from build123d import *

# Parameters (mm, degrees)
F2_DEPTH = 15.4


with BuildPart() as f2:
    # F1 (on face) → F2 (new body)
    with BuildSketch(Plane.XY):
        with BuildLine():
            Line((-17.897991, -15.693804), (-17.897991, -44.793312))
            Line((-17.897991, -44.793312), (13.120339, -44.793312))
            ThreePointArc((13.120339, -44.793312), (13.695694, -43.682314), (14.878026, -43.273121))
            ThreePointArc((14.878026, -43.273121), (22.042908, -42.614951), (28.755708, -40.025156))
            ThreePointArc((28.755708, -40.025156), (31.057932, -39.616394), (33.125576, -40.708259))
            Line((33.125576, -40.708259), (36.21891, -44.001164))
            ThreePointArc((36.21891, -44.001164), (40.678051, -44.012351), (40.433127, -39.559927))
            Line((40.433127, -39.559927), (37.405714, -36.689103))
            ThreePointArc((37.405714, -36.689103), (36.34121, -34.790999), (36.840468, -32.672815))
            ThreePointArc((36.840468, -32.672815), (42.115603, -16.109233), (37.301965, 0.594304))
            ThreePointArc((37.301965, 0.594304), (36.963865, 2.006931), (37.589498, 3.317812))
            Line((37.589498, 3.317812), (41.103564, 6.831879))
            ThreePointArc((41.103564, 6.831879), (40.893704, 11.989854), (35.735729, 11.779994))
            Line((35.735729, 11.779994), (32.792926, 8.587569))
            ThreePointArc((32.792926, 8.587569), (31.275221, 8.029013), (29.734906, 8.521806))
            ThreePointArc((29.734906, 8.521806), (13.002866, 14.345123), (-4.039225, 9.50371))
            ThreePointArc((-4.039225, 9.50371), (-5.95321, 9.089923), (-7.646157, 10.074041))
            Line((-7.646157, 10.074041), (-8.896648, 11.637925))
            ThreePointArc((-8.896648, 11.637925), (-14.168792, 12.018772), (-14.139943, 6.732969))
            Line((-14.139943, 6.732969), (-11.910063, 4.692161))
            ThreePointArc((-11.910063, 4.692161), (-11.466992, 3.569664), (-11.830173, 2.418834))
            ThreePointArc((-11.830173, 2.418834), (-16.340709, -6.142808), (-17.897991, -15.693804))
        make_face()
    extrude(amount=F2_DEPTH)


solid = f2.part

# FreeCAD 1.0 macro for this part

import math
import FreeCAD as App
import Part
import Sketcher

V = App.Vector
Q = App.Units.Quantity

doc = App.newDocument("Part")
body = doc.addObject("PartDesign::Body", "Body")

sketch1 = body.newObject("Sketcher::SketchObject", "Sketch")
sketch1.AttachmentSupport = (doc.getObject("XY_Plane"), [""])
sketch1.MapMode = "FlatFace"
sketch1.addGeometry(Part.LineSegment(V(-17.9, -15.7, 0), V(-17.9, -44.8, 0)), False)
sketch1.addGeometry(Part.LineSegment(V(-17.9, -44.8, 0), V(13.1, -44.8, 0)), False)
sketch1.addGeometry(Part.ArcOfCircle(Part.Circle(V(14.8, -45, 0), V(0, 0, 1), 1.7), math.radians(87), math.radians(174)), False)
sketch1.addGeometry(Part.ArcOfCircle(Part.Circle(V(16.1, -17.2, 0), V(0, 0, 1), 26.1), math.radians(-93), math.radians(-61)), False)
sketch1.addGeometry(Part.ArcOfCircle(Part.Circle(V(30.5, -43.2, 0), V(0, 0, 1), 3.6), math.radians(43), math.radians(119)), False)
sketch1.addGeometry(Part.LineSegment(V(33.1, -40.7, 0), V(36.2, -44, 0)), False)
sketch1.addGeometry(Part.ArcOfCircle(Part.Circle(V(38.5, -41.9, 0), V(0, 0, 1), 3.1), math.radians(-137), math.radians(50)), False)
sketch1.addGeometry(Part.LineSegment(V(40.4, -39.6, 0), V(37.4, -36.7, 0)), False)
sketch1.addGeometry(Part.ArcOfCircle(Part.Circle(V(39.3, -34.4, 0), V(0, 0, 1), 3), math.radians(145), math.radians(231)), False)
sketch1.addGeometry(Part.ArcOfCircle(Part.Circle(V(12.2, -15.7, 0), V(0, 0, 1), 29.9), math.radians(-35), math.radians(33)), False)
sketch1.addGeometry(Part.ArcOfCircle(Part.Circle(V(39.1, 1.8, 0), V(0, 0, 1), 2.2), math.radians(135), math.radians(213)), False)
sketch1.addGeometry(Part.LineSegment(V(37.6, 3.3, 0), V(41.1, 6.8, 0)), False)
sketch1.addGeometry(Part.ArcOfCircle(Part.Circle(V(38.4, 9.3, 0), V(0, 0, 1), 3.7), math.radians(-43), math.radians(137)), False)
sketch1.addGeometry(Part.LineSegment(V(35.7, 11.8, 0), V(32.8, 8.6, 0)), False)
sketch1.addGeometry(Part.ArcOfCircle(Part.Circle(V(31.2, 10.5, 0), V(0, 0, 1), 2.5), math.radians(-127), math.radians(-51)), False)
sketch1.addGeometry(Part.ArcOfCircle(Part.Circle(V(12.1, -15.1, 0), V(0, 0, 1), 29.4), math.radians(53), math.radians(123)), False)
sketch1.addGeometry(Part.ArcOfCircle(Part.Circle(V(-5.5, 11.8, 0), V(0, 0, 1), 2.7), math.radians(-141), math.radians(-57)), False)
sketch1.addGeometry(Part.LineSegment(V(-7.6, 10.1, 0), V(-8.9, 11.6, 0)), False)
sketch1.addGeometry(Part.ArcOfCircle(Part.Circle(V(-11.7, 9.4, 0), V(0, 0, 1), 3.6), math.radians(39), math.radians(228)), False)
sketch1.addGeometry(Part.LineSegment(V(-14.1, 6.7, 0), V(-11.9, 4.7, 0)), False)
sketch1.addGeometry(Part.ArcOfCircle(Part.Circle(V(-13.3, 3.5, 0), V(0, 0, 1), 1.8), math.radians(-37), math.radians(41)), False)
sketch1.addGeometry(Part.ArcOfCircle(Part.Circle(V(12.2, -15.7, 0), V(0, 0, 1), 30.1), math.radians(143), math.radians(180)), False)
sketch1.addConstraint(Sketcher.Constraint("Coincident", 0, 2, 1, 1))
sketch1.addConstraint(Sketcher.Constraint("Coincident", 1, 2, 2, 2))
sketch1.addConstraint(Sketcher.Constraint("Tangent", 2, 1, 3, 1))
sketch1.addConstraint(Sketcher.Constraint("Tangent", 3, 2, 4, 2))
sketch1.addConstraint(Sketcher.Constraint("Tangent", 4, 1, 5, 1))
sketch1.addConstraint(Sketcher.Constraint("Tangent", 5, 2, 6, 1))
sketch1.addConstraint(Sketcher.Constraint("Coincident", 6, 2, 7, 1))
sketch1.addConstraint(Sketcher.Constraint("Coincident", 7, 2, 8, 2))
sketch1.addConstraint(Sketcher.Constraint("Tangent", 8, 1, 9, 1))
sketch1.addConstraint(Sketcher.Constraint("Tangent", 9, 2, 10, 2))
sketch1.addConstraint(Sketcher.Constraint("Tangent", 10, 1, 11, 1))
sketch1.addConstraint(Sketcher.Constraint("Coincident", 11, 2, 12, 1))
sketch1.addConstraint(Sketcher.Constraint("Tangent", 12, 2, 13, 1))
sketch1.addConstraint(Sketcher.Constraint("Coincident", 13, 2, 14, 2))
sketch1.addConstraint(Sketcher.Constraint("Tangent", 14, 1, 15, 1))
sketch1.addConstraint(Sketcher.Constraint("Tangent", 15, 2, 16, 2))
sketch1.addConstraint(Sketcher.Constraint("Tangent", 16, 1, 17, 1))
sketch1.addConstraint(Sketcher.Constraint("Tangent", 17, 2, 18, 1))
sketch1.addConstraint(Sketcher.Constraint("Tangent", 18, 2, 19, 1))
sketch1.addConstraint(Sketcher.Constraint("Coincident", 19, 2, 20, 2))
sketch1.addConstraint(Sketcher.Constraint("Tangent", 20, 1, 21, 1))
sketch1.addConstraint(Sketcher.Constraint("Tangent", 21, 2, 0, 1))
sketch1.addConstraint(Sketcher.Constraint("Vertical", 0))
sketch1.addConstraint(Sketcher.Constraint("Horizontal", 1))
sketch1.addConstraint(Sketcher.Constraint("Horizontal", 9, 3, 21, 2))
sketch1.addConstraint(Sketcher.Constraint("Angle", 11, Q("45.000008 deg")))
sketch1.addConstraint(Sketcher.Constraint("Radius", 14, Q("2.4871 mm")))
sketch1.addConstraint(Sketcher.Constraint("Radius", 6, Q("3.066278 mm")))
sketch1.addConstraint(Sketcher.Constraint("Radius", 15, Q("29.418429 mm")))
sketch1.addConstraint(Sketcher.Constraint("Radius", 18, Q("3.60077 mm")))
sketch1.addConstraint(Sketcher.Constraint("Radius", 20, Q("1.805158 mm")))
sketch1.addConstraint(Sketcher.Constraint("Radius", 2, Q("1.687026 mm")))
sketch1.addConstraint(Sketcher.Constraint("Radius", 3, Q("26.095435 mm")))
sketch1.addConstraint(Sketcher.Constraint("Radius", 4, Q("3.599642 mm")))
sketch1.addConstraint(Sketcher.Constraint("Radius", 8, Q("2.999016 mm")))
sketch1.addConstraint(Sketcher.Constraint("Radius", 9, Q("29.949153 mm")))
sketch1.addConstraint(Sketcher.Constraint("Radius", 10, Q("2.177123 mm")))
sketch1.addConstraint(Sketcher.Constraint("Radius", 12, Q("3.650257 mm")))
sketch1.addConstraint(Sketcher.Constraint("Radius", 16, Q("2.709413 mm")))
sketch1.addConstraint(Sketcher.Constraint("Radius", 21, Q("30.067305 mm")))
sketch1.addConstraint(Sketcher.Constraint("DistanceX", 15, 3, 10, 3, Q("26.981 mm")))
sketch1.addConstraint(Sketcher.Constraint("DistanceX", 1, 1, 1, 2, Q("31.01833 mm")))
sketch1.addConstraint(Sketcher.Constraint("DistanceY", 0, 2, 0, 1, Q("29.099508 mm")))
sketch1.addConstraint(Sketcher.Constraint("DistanceY", 21, 3, -1, 1, Q("15.693798 mm")))
sketch1.addConstraint(Sketcher.Constraint("DistanceX", 14, 3, 12, 3, Q("7.197899 mm")))
sketch1.addConstraint(Sketcher.Constraint("DistanceY", 12, 3, 14, 3, Q("1.209601 mm")))
sketch1.addConstraint(Sketcher.Constraint("DistanceX", 16, 3, 14, 3, Q("36.7518 mm")))
sketch1.addConstraint(Sketcher.Constraint("DistanceY", 15, 3, 18, 3, Q("24.450099 mm")))
sketch1.addConstraint(Sketcher.Constraint("DistanceY", 3, 3, 20, 3, Q("20.712399 mm")))
sketch1.addConstraint(Sketcher.Constraint("DistanceY", 6, 3, 4, 1, Q("1.1935 mm")))
sketch1.addConstraint(Sketcher.Constraint("DistanceX", 9, 2, 11, 2, Q("3.801599 mm")))
sketch1.addConstraint(Sketcher.Constraint("Distance", 11, Q("4.969641 mm")))
sketch1.addConstraint(Sketcher.Constraint("Distance", 13, Q("4.341851 mm")))
sketch1.addConstraint(Sketcher.Constraint("Distance", 19, Q("3.02279 mm")))
sketch1.addConstraint(Sketcher.Constraint("DistanceY", 2, 3, -1, 1, Q("44.958308 mm")))
sketch1.addConstraint(Sketcher.Constraint("DistanceX", -1, 1, 3, 3, Q("16.096169 mm")))
sketch1.addConstraint(Sketcher.Constraint("DistanceX", -1, 1, 6, 3, Q("38.453761 mm")))
sketch1.addConstraint(Sketcher.Constraint("DistanceY", 6, 3, -1, 1, Q("41.901759 mm")))
sketch1.addConstraint(Sketcher.Constraint("DistanceX", -1, 1, 8, 3, Q("39.310959 mm")))
sketch1.addConstraint(Sketcher.Constraint("DistanceY", 8, 3, -1, 1, Q("34.373042 mm")))
sketch1.addConstraint(Sketcher.Constraint("DistanceY", 15, 3, -1, 1, Q("15.060882 mm")))
sketch1.addConstraint(Sketcher.Constraint("DistanceX", 0, 2, -1, 1, Q("17.897991 mm")))
sketch1.addConstraint(Sketcher.Constraint("DistanceY", -1, 1, 16, 1, Q("10.074041 mm")))
sketch1.addConstraint(Sketcher.Constraint("DistanceY", 6, 3, 6, 2, Q("2.341832 mm")))
sketch1.addConstraint(Sketcher.Constraint("DistanceY", 7, 2, 8, 3, Q("2.316061 mm")))
pad1 = body.newObject("PartDesign::Pad", "Pad")
pad1.Profile = sketch1
pad1.Length = 15.4

doc.recompute()
